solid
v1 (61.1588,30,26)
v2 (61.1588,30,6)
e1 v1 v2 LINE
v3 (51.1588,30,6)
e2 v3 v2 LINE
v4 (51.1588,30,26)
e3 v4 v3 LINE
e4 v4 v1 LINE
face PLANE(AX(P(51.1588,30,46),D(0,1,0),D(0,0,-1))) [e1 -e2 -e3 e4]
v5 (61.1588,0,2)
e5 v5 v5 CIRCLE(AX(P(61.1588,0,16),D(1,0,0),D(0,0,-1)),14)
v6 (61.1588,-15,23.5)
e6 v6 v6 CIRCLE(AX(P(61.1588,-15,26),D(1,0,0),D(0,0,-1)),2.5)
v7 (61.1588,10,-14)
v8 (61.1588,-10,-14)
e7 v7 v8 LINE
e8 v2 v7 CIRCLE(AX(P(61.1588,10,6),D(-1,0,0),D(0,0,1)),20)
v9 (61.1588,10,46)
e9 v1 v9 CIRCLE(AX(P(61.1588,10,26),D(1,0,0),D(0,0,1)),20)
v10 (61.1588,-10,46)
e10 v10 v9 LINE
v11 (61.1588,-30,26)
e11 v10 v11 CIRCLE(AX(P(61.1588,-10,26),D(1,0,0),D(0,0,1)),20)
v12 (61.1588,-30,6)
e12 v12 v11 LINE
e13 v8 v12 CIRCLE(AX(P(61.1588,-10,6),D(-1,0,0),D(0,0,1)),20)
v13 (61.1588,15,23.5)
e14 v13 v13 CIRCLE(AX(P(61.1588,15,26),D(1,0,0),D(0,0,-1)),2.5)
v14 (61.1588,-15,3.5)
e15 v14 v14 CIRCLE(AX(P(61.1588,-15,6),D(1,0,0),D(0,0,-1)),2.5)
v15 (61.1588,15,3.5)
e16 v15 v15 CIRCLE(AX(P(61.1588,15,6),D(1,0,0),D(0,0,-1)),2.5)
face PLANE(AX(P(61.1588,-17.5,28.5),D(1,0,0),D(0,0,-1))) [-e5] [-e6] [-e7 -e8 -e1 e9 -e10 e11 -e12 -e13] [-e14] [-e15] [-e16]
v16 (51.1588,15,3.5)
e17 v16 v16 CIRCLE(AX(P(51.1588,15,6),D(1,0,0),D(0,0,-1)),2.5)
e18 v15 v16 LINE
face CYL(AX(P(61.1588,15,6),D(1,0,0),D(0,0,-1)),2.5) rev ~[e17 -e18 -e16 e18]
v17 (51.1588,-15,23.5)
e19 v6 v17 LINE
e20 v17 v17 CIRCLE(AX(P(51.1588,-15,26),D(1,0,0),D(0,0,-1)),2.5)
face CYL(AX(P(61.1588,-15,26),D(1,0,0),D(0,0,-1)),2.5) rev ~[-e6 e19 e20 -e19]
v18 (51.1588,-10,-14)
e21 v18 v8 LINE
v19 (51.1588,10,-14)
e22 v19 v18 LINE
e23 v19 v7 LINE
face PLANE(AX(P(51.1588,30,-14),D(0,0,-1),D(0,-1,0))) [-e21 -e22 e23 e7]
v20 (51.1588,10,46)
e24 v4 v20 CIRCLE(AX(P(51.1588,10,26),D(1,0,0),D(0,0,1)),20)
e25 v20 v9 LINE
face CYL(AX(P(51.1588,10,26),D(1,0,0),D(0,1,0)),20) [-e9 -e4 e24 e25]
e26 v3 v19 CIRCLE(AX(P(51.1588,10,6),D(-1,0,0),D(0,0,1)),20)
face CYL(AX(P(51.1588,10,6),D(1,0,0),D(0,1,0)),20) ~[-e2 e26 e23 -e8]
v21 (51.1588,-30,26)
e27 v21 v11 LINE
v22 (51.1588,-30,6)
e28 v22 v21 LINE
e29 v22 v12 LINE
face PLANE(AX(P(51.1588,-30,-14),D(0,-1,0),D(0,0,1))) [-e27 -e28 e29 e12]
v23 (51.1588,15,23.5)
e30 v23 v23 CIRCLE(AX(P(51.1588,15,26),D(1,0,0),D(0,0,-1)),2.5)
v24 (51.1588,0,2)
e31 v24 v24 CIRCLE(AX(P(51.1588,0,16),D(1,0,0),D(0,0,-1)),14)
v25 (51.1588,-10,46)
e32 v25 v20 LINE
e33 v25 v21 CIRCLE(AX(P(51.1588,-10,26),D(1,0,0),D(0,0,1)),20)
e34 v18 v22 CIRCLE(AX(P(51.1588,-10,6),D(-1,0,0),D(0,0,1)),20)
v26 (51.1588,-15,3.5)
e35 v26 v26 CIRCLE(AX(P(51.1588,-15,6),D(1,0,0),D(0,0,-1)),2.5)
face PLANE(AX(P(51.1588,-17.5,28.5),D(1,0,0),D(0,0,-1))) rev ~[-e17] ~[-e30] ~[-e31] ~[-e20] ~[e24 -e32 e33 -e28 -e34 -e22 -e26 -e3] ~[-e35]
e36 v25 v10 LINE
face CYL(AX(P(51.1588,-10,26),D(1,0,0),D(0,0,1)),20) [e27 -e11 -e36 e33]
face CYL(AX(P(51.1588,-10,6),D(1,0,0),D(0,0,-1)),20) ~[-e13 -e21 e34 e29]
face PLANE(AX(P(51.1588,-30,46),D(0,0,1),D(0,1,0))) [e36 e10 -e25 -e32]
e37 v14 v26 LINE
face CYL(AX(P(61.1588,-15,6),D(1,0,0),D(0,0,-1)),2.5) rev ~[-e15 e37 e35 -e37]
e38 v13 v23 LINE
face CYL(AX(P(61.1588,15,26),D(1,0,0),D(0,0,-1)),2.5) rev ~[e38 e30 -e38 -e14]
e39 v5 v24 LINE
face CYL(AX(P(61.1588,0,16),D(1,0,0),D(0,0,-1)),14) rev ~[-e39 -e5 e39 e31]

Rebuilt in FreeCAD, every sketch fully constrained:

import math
import FreeCAD as App
import Part
import Sketcher
from FreeCAD import Vector


def edges_at(feature, points):
    """Names of the edges that pass closest to the given points."""
    edges = feature.Shape.Edges
    near = lambda p: min(range(len(edges)), key=lambda i: edges[i].distToShape(Part.Vertex(*p))[0])
    return sorted({f"Edge{near(p) + 1}" for p in points})

doc = App.newDocument("Part")
params = doc.addObject("Spreadsheet::Sheet", "Params")
for row, (alias, value) in enumerate([
    ("sketch1_diameter", "95 mm"),
    ("sketch1_diameter2", "5 mm"),
    ("sketch1_diameter3", "8.5 mm"),
    ("pad1_length", "54 mm"),
    ("sketch2_width", "7 mm"),
    ("sketch2_height", "35 mm"),
    ("sketch2_radius", "47.5 mm"),
    ("pad2_length", "25 mm"),
    ("sketch3_width", "60 mm"),
    ("pad3_length", "10 mm"),
    ("fillet_radius", "20 mm"),
    ("sketch4_diameter", "5 mm"),
    ("pocket1_length", "30 mm"),
    ("sketch5_diameter", "28 mm"),
    ("pocket2_length", "13 mm"),
    ("sketch6_diameter", "95 mm"),
    ("pocket3_length", "10 mm"),
    ("sketch7_diameter", "35 mm"),
    ("sketch7_diameter2", "85 mm"),
    ("pocket4_length", "15 mm"),
    ("sketch8_diameter", "27 mm"),
    ("pocket5_length", "10 mm"),
    ("sketch9_diameter", "3 mm"),
    ("pocket6_length", "15 mm"),
    ("sketch10_diameter", "3 mm"),
], start=1):
    params.set(f"A{row}", alias)
    params.set(f"B{row}", "=" + value)
    params.setAlias(f"B{row}", alias)

body = doc.addObject("PartDesign::Body", "Body")

sketch1 = body.newObject("Sketcher::SketchObject", "Sketch")
sketch1.AttachmentSupport = (doc.getObject("XY_Plane"), [""])
sketch1.MapMode = "FlatFace"
sketch1.addGeometry([
    Part.Circle(Vector(0, 0, 0), Vector(0, 0, 1), 47.5),
    Part.Circle(Vector(-12.5, -21.6506, 0), Vector(0, 0, 1), 2.5),
    Part.Circle(Vector(12.5, -21.6506, 0), Vector(0, 0, 1), 2.5),
    Part.Circle(Vector(-25, 0, 0), Vector(0, 0, 1), 2.5),
    Part.Circle(Vector(-12.5, 21.6506, 0), Vector(0, 0, 1), 2.5),
    Part.Circle(Vector(0, 0, 0), Vector(0, 0, 1), 4.25),
    Part.Circle(Vector(12.5, 21.6506, 0), Vector(0, 0, 1), 2.5),
    Part.Circle(Vector(25, 0, 0), Vector(0, 0, 1), 2.5),
], False)
sketch1.addConstraint([
    Sketcher.Constraint("Coincident", 0, 3, -1, 1),
    Sketcher.Constraint("Coincident", 5, 3, -1, 1),
    Sketcher.Constraint("Equal", 1, 2),
    Sketcher.Constraint("Equal", 2, 3),
    Sketcher.Constraint("Equal", 3, 4),
    Sketcher.Constraint("Equal", 4, 6),
    Sketcher.Constraint("Equal", 6, 7),
    Sketcher.Constraint("Symmetric", 2, 3, 4, 3, -1, 1),
    Sketcher.Constraint("Symmetric", 1, 3, 6, 3, -1, 1),
    Sketcher.Constraint("Symmetric", 3, 3, 7, 3, -1, 1),
    Sketcher.Constraint("Symmetric", 1, 3, 2, 3, -2),
    Sketcher.Constraint("PointOnObject", 3, 3, -1),
    Sketcher.Constraint("Diameter", 0, 95.0),
    Sketcher.Constraint("Diameter", 1, 5.0),
    Sketcher.Constraint("Diameter", 5, 8.5),
    Sketcher.Constraint("DistanceX", 3, 3, -1, 1, 25.0),
    Sketcher.Constraint("DistanceX", 1, 3, 2, 3, 25.0),
    Sketcher.Constraint("DistanceY", 1, 3, -1, 1, 21.6506),
])
sketch1.setExpression("Constraints[12]", "Params.sketch1_diameter")
sketch1.setExpression("Constraints[13]", "Params.sketch1_diameter2")
sketch1.setExpression("Constraints[14]", "Params.sketch1_diameter3")
pad1 = body.newObject("PartDesign::Pad", "Pad")
pad1.Profile = sketch1
pad1.setExpression("Length", "Params.pad1_length")

sketch2 = body.newObject("Sketcher::SketchObject", "Sketch001")
sketch2.AttachmentSupport = (doc.getObject("XY_Plane"), [""])
sketch2.MapMode = "FlatFace"
sketch2.AttachmentOffset = App.Placement(Vector(0, 0, 16), App.Rotation())
sketch2.addGeometry([
    Part.ArcOfCircle(Part.Circle(Vector(0, 0, 0), Vector(0, 0, 1), 47.5), math.radians(-21.618274), math.radians(21.618274)),
    Part.LineSegment(Vector(44.1588, -17.5, 0), Vector(51.1588, -17.5, 0)),
    Part.LineSegment(Vector(51.1588, -17.5, 0), Vector(51.1588, 17.5, 0)),
    Part.LineSegment(Vector(51.1588, 17.5, 0), Vector(44.1588, 17.5, 0)),
], False)
sketch2.addConstraint([
    Sketcher.Constraint("Coincident", 0, 1, 1, 1),
    Sketcher.Constraint("Coincident", 1, 2, 2, 1),
    Sketcher.Constraint("Coincident", 2, 2, 3, 1),
    Sketcher.Constraint("Coincident", 3, 2, 0, 2),
    Sketcher.Constraint("Horizontal", 1),
    Sketcher.Constraint("Vertical", 2),
    Sketcher.Constraint("Horizontal", 3),
    Sketcher.Constraint("Coincident", 0, 3, -1, 1),
    Sketcher.Constraint("Vertical", 0, 1, 3, 2),
    Sketcher.Constraint("DistanceX", 1, 1, 1, 2, 7.0),
    Sketcher.Constraint("DistanceY", 2, 1, 2, 2, 35.0),
    Sketcher.Constraint("Radius", 0, 47.5),
])
sketch2.setExpression("Constraints[9]", "Params.sketch2_width")
sketch2.setExpression("Constraints[10]", "Params.sketch2_height")
sketch2.setExpression("Constraints[11]", "Params.sketch2_radius")
pad2 = body.newObject("PartDesign::Pad", "Pad001")
pad2.Profile = sketch2
pad2.setExpression("Length", "Params.pad2_length")
pad2.Midplane = True

sketch3 = body.newObject("Sketcher::SketchObject", "Sketch002")
sketch3.AttachmentSupport = (doc.getObject("YZ_Plane"), [""])
sketch3.MapMode = "FlatFace"
sketch3.AttachmentOffset = App.Placement(Vector(0, 0, 51.1588), App.Rotation())
sketch3.addGeometry([
    Part.LineSegment(Vector(30, -14, 0), Vector(30, 46, 0)),
    Part.LineSegment(Vector(30, 46, 0), Vector(-30, 46, 0)),
    Part.LineSegment(Vector(-30, 46, 0), Vector(-30, -14, 0)),
    Part.LineSegment(Vector(-30, -14, 0), Vector(30, -14, 0)),
], False)
sketch3.addConstraint([
    Sketcher.Constraint("Coincident", 0, 2, 1, 1),
    Sketcher.Constraint("Coincident", 1, 2, 2, 1),
    Sketcher.Constraint("Coincident", 2, 2, 3, 1),
    Sketcher.Constraint("Coincident", 3, 2, 0, 1),
    Sketcher.Constraint("Vertical", 0),
    Sketcher.Constraint("Horizontal", 1),
    Sketcher.Constraint("Vertical", 2),
    Sketcher.Constraint("Horizontal", 3),
    Sketcher.Constraint("Equal", 3, 0),
    Sketcher.Constraint("DistanceX", 1, 2, 1, 1, 60.0),
    Sketcher.Constraint("DistanceX", -1, 1, 0, 2, 30.0),
    Sketcher.Constraint("DistanceY", -1, 1, 0, 2, 46.0),
])
sketch3.setExpression("Constraints[9]", "Params.sketch3_width")
pad3 = body.newObject("PartDesign::Pad", "Pad002")
pad3.Profile = sketch3
pad3.setExpression("Length", "Params.pad3_length")
doc.recompute()

fillet = body.newObject("PartDesign::Fillet", "Fillet")
fillet.Base = (pad3, edges_at(pad3, [
    (56.159, 30, 46),
    (56.159, 30, -14),
    (56.159, -30, -14),
    (56.159, -30, 46),
]))
fillet.setExpression("Radius", "Params.fillet_radius")

sketch4 = body.newObject("Sketcher::SketchObject", "Sketch003")
sketch4.AttachmentSupport = (doc.getObject("YZ_Plane"), [""])
sketch4.MapMode = "FlatFace"
sketch4.AttachmentOffset = App.Placement(Vector(0, 0, 61.1588), App.Rotation())
sketch4.addGeometry([
    Part.Circle(Vector(15, 26, 0), Vector(0, 0, 1), 2.5),
    Part.Circle(Vector(15, 6, 0), Vector(0, 0, 1), 2.5),
    Part.Circle(Vector(-15, 26, 0), Vector(0, 0, 1), 2.5),
    Part.Circle(Vector(-15, 6, 0), Vector(0, 0, 1), 2.5),
], False)
sketch4.addConstraint([
    Sketcher.Constraint("Equal", 0, 1),
    Sketcher.Constraint("Equal", 1, 2),
    Sketcher.Constraint("Equal", 2, 3),
    Sketcher.Constraint("Symmetric", 0, 3, 2, 3, -2),
    Sketcher.Constraint("Symmetric", 1, 3, 3, 3, -2),
    Sketcher.Constraint("Vertical", 0, 3, 1, 3),
    Sketcher.Constraint("Diameter", 0, 5.0),
    Sketcher.Constraint("DistanceY", 1, 3, 0, 3, 20.0),
    Sketcher.Constraint("DistanceX", 2, 3, 0, 3, 30.0),
    Sketcher.Constraint("DistanceY", -1, 1, 0, 3, 26.0),
])
sketch4.setExpression("Constraints[6]", "Params.sketch4_diameter")
pocket1 = body.newObject("PartDesign::Pocket", "Pocket")
pocket1.Profile = sketch4
pocket1.setExpression("Length", "Params.pocket1_length")

sketch5 = body.newObject("Sketcher::SketchObject", "Sketch004")
sketch5.AttachmentSupport = (doc.getObject("YZ_Plane"), [""])
sketch5.MapMode = "FlatFace"
sketch5.AttachmentOffset = App.Placement(Vector(0, 0, 61.1588), App.Rotation())
sketch5.addGeometry(Part.Circle(Vector(0, 16, 0), Vector(0, 0, 1), 14), False)
sketch5.addConstraint([
    Sketcher.Constraint("PointOnObject", 0, 3, -2),
    Sketcher.Constraint("Diameter", 0, 28.0),
    Sketcher.Constraint("DistanceY", -1, 1, 0, 3, 16.0),
])
sketch5.setExpression("Constraints[1]", "Params.sketch5_diameter")
pocket2 = body.newObject("PartDesign::Pocket", "Pocket001")
pocket2.Profile = sketch5
pocket2.setExpression("Length", "Params.pocket2_length")

sketch6 = body.newObject("Sketcher::SketchObject", "Sketch005")
sketch6.AttachmentSupport = (doc.getObject("XY_Plane"), [""])
sketch6.MapMode = "FlatFace"
sketch6.AttachmentOffset = App.Placement(Vector(0, 0, 54), App.Rotation())
sketch6.addGeometry(Part.Circle(Vector(0, 0, 0), Vector(0, 0, 1), 47.5), False)
sketch6.addConstraint([
    Sketcher.Constraint("Coincident", 0, 3, -1, 1),
    Sketcher.Constraint("Diameter", 0, 95.0),
])
sketch6.setExpression("Constraints[1]", "Params.sketch6_diameter")
pocket3 = body.newObject("PartDesign::Pocket", "Pocket002")
pocket3.Profile = sketch6
pocket3.setExpression("Length", "Params.pocket3_length")

sketch7 = body.newObject("Sketcher::SketchObject", "Sketch006")
sketch7.AttachmentSupport = (doc.getObject("XY_Plane"), [""])
sketch7.MapMode = "FlatFace"
sketch7.AttachmentOffset = App.Placement(Vector(0, 0, 44), App.Rotation())
sketch7.addGeometry([
    Part.Circle(Vector(0, 0, 0), Vector(0, 0, 1), 42.5),
    Part.Circle(Vector(0, 0, 0), Vector(0, 0, 1), 17.5),
], False)
sketch7.addConstraint([
    Sketcher.Constraint("Coincident", 0, 3, -1, 1),
    Sketcher.Constraint("Coincident", 1, 3, -1, 1),
    Sketcher.Constraint("Diameter", 1, 35.0),
    Sketcher.Constraint("Diameter", 0, 85.0),
])
sketch7.setExpression("Constraints[2]", "Params.sketch7_diameter")
sketch7.setExpression("Constraints[3]", "Params.sketch7_diameter2")
pocket4 = body.newObject("PartDesign::Pocket", "Pocket003")
pocket4.Profile = sketch7
pocket4.setExpression("Length", "Params.pocket4_length")

sketch8 = body.newObject("Sketcher::SketchObject", "Sketch007")
sketch8.AttachmentSupport = (doc.getObject("XY_Plane"), [""])
sketch8.MapMode = "FlatFace"
sketch8.AttachmentOffset = App.Placement(Vector(0, 0, 44), App.Rotation())
sketch8.addGeometry(Part.Circle(Vector(0, 0, 0), Vector(0, 0, 1), 13.5), False)
sketch8.addConstraint([
    Sketcher.Constraint("Coincident", 0, 3, -1, 1),
    Sketcher.Constraint("Diameter", 0, 27.0),
])
sketch8.setExpression("Constraints[1]", "Params.sketch8_diameter")
pocket5 = body.newObject("PartDesign::Pocket", "Pocket004")
pocket5.Profile = sketch8
pocket5.setExpression("Length", "Params.pocket5_length")

sketch9 = body.newObject("Sketcher::SketchObject", "Sketch008")
sketch9.AttachmentSupport = (doc.getObject("XY_Plane"), [""])
sketch9.MapMode = "FlatFace"
sketch9.AttachmentOffset = App.Placement(Vector(0, 0, 34), App.Rotation())
sketch9.addGeometry([
    Part.Circle(Vector(0, 9.525, 0), Vector(0, 0, 1), 1.5),
    Part.Circle(Vector(-8.2489, 4.7625, 0), Vector(0, 0, 1), 1.5),
    Part.Circle(Vector(-8.2489, -4.7625, 0), Vector(0, 0, 1), 1.5),
    Part.Circle(Vector(0, -9.525, 0), Vector(0, 0, 1), 1.5),
    Part.Circle(Vector(8.2489, -4.7625, 0), Vector(0, 0, 1), 1.5),
    Part.Circle(Vector(8.2489, 4.7625, 0), Vector(0, 0, 1), 1.5),
], False)
sketch9.addConstraint([
    Sketcher.Constraint("Equal", 0, 1),
    Sketcher.Constraint("Equal", 1, 2),
    Sketcher.Constraint("Equal", 2, 3),
    Sketcher.Constraint("Equal", 3, 4),
    Sketcher.Constraint("Equal", 4, 5),
    Sketcher.Constraint("Symmetric", 0, 3, 3, 3, -1, 1),
    Sketcher.Constraint("Symmetric", 1, 3, 4, 3, -1, 1),
    Sketcher.Constraint("Symmetric", 2, 3, 5, 3, -1, 1),
    Sketcher.Constraint("Symmetric", 2, 3, 4, 3, -2),
    Sketcher.Constraint("PointOnObject", 0, 3, -2),
    Sketcher.Constraint("Diameter", 0, 3.0),
    Sketcher.Constraint("DistanceY", -1, 1, 0, 3, 9.525),
    Sketcher.Constraint("DistanceY", 2, 3, 1, 3, 9.525),
    Sketcher.Constraint("DistanceX", 1, 3, -1, 1, 8.249),
])
sketch9.setExpression("Constraints[10]", "Params.sketch9_diameter")
pocket6 = body.newObject("PartDesign::Pocket", "Pocket005")
pocket6.Profile = sketch9
pocket6.setExpression("Length", "Params.pocket6_length")

sketch10 = body.newObject("Sketcher::SketchObject", "Sketch009")
sketch10.AttachmentSupport = (doc.getObject("YZ_Plane"), [""])
sketch10.MapMode = "FlatFace"
sketch10.addGeometry([
    Part.Circle(Vector(0, 36.75, 0), Vector(0, 0, 1), 1.5),
    Part.Circle(Vector(0, 41.85, 0), Vector(0, 0, 1), 1.5),
], False)
sketch10.addConstraint([
    Sketcher.Constraint("Equal", 0, 1),
    Sketcher.Constraint("PointOnObject", 0, 3, -2),
    Sketcher.Constraint("PointOnObject", 1, 3, -2),
    Sketcher.Constraint("Diameter", 0, 3.0),
    Sketcher.Constraint("DistanceY", 0, 3, 1, 3, 5.1),
    Sketcher.Constraint("DistanceY", -1, 1, 0, 3, 36.75),
])
sketch10.setExpression("Constraints[3]", "Params.sketch10_diameter")
pocket7 = body.newObject("PartDesign::Pocket", "Pocket006")
pocket7.Profile = sketch10
pocket7.Type = "ThroughAll"

sketch11 = body.newObject("Sketcher::SketchObject", "Sketch010")
sketch11.AttachmentSupport = (doc.getObject("YZ_Plane"), [""])
sketch11.MapMode = "FlatFace"
sketch11.AttachmentOffset = App.Placement(Vector(0, 0, 51.1588), App.Rotation())
sketch11.addGeometry([
    Part.LineSegment(Vector(70.4511, -52.3261, 0), Vector(-87.7881, -52.3261, 0)),
    Part.LineSegment(Vector(-87.7881, -52.3261, 0), Vector(-87.7881, 66.1957, 0)),
    Part.LineSegment(Vector(-87.7881, 66.1957, 0), Vector(70.4511, 66.1957, 0)),
    Part.LineSegment(Vector(70.4511, 66.1957, 0), Vector(70.4511, -52.3261, 0)),
], False)
sketch11.addConstraint([
    Sketcher.Constraint("Coincident", 0, 2, 1, 1),
    Sketcher.Constraint("Coincident", 1, 2, 2, 1),
    Sketcher.Constraint("Coincident", 2, 2, 3, 1),
    Sketcher.Constraint("Coincident", 3, 2, 0, 1),
    Sketcher.Constraint("Horizontal", 0),
    Sketcher.Constraint("Vertical", 1),
    Sketcher.Constraint("Horizontal", 2),
    Sketcher.Constraint("Vertical", 3),
    Sketcher.Constraint("DistanceX", 0, 2, 0, 1, 158.2392),
    Sketcher.Constraint("DistanceY", 1, 1, 1, 2, 118.5218),
    Sketcher.Constraint("DistanceX", 0, 2, -1, 1, 87.788),
    Sketcher.Constraint("DistanceY", 0, 2, -1, 1, 52.326),
])
pocket8 = body.newObject("PartDesign::Pocket", "Pocket007")
pocket8.Profile = sketch11
pocket8.Type = "ThroughAll"

doc.recompute()
